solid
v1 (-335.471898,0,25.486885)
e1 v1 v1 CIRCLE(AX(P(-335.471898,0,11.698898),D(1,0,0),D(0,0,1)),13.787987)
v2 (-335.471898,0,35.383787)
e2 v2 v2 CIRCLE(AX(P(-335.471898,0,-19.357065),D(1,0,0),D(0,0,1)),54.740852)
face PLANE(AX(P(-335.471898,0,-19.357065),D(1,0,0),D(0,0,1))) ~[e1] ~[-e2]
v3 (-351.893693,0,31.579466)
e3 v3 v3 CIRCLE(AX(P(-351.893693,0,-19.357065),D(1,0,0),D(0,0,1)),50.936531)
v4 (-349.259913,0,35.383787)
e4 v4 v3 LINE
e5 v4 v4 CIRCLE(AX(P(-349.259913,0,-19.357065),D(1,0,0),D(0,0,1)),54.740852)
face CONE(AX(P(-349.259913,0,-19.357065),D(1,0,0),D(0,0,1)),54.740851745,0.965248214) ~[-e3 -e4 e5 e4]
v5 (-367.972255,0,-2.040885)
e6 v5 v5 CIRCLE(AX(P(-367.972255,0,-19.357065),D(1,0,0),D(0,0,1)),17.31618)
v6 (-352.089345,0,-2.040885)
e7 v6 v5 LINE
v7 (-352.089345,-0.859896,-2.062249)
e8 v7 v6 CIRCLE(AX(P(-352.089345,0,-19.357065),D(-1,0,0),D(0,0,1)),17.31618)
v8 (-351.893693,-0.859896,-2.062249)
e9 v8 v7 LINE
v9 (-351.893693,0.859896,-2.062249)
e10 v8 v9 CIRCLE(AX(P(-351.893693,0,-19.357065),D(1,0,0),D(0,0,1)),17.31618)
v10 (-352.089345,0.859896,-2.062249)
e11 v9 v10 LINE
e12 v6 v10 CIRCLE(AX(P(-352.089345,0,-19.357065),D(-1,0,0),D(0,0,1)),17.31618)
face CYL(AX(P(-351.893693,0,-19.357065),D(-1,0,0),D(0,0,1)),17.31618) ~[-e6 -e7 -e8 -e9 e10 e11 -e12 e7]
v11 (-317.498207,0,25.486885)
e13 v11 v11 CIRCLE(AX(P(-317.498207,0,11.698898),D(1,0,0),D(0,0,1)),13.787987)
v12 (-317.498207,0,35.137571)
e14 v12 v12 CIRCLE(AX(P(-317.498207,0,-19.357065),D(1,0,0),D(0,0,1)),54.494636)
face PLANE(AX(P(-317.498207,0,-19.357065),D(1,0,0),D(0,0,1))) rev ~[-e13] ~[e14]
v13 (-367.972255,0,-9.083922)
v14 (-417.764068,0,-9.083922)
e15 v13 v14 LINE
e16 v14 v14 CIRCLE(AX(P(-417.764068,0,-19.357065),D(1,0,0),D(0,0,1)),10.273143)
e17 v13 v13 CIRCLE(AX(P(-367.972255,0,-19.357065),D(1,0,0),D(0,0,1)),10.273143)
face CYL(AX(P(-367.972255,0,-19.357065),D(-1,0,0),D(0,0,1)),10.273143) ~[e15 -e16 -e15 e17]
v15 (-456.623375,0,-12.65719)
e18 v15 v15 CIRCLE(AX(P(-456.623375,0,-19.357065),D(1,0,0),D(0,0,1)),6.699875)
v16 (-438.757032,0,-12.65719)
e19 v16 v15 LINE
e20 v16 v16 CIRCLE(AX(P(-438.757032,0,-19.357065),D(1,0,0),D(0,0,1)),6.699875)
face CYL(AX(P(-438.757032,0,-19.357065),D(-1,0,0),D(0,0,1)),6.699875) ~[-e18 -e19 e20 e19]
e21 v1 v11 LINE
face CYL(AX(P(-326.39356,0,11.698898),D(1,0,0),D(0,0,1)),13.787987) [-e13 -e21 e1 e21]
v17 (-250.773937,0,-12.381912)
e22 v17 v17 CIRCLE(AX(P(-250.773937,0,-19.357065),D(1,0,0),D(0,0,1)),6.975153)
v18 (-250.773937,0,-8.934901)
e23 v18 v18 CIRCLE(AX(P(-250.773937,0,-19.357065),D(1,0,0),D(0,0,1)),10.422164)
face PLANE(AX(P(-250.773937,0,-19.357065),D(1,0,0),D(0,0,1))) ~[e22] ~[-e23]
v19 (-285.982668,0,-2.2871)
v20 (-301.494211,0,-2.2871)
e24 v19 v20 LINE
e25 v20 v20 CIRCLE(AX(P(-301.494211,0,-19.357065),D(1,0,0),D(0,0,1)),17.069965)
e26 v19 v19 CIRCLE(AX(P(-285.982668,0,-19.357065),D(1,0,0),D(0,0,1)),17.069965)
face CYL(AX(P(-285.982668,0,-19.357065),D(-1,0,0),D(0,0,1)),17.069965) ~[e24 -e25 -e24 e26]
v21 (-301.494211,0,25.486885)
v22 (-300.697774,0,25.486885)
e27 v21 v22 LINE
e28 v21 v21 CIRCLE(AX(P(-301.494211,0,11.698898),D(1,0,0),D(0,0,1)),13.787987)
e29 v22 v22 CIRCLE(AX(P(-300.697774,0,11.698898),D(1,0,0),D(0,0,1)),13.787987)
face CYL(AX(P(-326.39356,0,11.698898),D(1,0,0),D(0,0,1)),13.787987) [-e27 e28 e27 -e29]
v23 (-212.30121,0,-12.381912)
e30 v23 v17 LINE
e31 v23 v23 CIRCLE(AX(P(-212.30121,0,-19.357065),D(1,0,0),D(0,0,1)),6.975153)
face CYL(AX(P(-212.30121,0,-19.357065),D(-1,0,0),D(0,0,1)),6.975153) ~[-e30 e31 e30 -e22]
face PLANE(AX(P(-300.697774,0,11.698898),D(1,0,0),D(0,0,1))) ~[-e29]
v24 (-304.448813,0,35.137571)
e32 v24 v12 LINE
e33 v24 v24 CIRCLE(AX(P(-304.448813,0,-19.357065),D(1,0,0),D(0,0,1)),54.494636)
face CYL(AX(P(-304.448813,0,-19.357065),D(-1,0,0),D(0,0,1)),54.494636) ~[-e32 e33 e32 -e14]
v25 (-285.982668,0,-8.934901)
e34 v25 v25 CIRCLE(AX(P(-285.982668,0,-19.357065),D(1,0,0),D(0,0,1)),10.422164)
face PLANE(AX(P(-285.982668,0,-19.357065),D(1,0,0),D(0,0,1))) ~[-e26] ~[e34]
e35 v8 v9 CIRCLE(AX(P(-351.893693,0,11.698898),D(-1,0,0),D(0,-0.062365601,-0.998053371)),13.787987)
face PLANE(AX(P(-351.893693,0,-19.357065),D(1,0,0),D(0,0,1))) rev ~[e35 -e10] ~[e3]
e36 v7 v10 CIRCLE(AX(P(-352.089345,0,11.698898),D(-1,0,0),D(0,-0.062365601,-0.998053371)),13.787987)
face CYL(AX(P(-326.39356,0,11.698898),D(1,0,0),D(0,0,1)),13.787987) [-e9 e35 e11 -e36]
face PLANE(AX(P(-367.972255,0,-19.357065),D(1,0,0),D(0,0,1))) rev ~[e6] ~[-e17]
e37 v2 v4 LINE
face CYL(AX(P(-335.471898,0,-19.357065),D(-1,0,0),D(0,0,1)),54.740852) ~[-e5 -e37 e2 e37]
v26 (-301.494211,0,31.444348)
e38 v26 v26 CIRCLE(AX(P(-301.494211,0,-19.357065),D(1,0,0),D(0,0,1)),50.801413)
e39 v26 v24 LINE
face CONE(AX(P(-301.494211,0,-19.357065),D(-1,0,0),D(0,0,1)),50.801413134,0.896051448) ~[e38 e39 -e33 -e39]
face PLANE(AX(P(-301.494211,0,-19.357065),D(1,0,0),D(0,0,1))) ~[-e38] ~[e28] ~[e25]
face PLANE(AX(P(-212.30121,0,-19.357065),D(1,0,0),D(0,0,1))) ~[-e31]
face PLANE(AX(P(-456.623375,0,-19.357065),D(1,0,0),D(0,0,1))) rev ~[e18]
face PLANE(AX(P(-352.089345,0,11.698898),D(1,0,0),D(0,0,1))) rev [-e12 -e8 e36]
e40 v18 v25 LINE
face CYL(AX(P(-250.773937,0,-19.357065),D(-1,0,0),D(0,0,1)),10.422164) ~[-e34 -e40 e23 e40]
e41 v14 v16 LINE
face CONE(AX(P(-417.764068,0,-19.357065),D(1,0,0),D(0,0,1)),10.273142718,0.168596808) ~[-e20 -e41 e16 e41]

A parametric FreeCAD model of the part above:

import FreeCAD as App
import Part
import Sketcher

V = App.Vector
Q = App.Units.Quantity

doc = App.newDocument("Part")
body = doc.addObject("PartDesign::Body", "Body")

sketch1 = body.newObject("Sketcher::SketchObject", "Sketch")
sketch1.AttachmentSupport = (doc.getObject("XZ_Plane"), [""])
sketch1.MapMode = "FlatFace"
sketch1.addGeometry([
    Part.LineSegment(V(-456.623375, -12.65719, 0), V(-456.623375, -19.357065, 0)),
    Part.LineSegment(V(-456.623375, -19.357065, 0), V(-335.471898, -19.357065, 0)),
    Part.LineSegment(V(-335.471898, -19.357065, 0), V(-335.471898, 35.383787, 0)),
    Part.LineSegment(V(-335.471898, 35.383787, 0), V(-349.259913, 35.383787, 0)),
    Part.LineSegment(V(-349.259913, 35.383787, 0), V(-351.893693, 31.579466, 0)),
    Part.LineSegment(V(-351.893693, 31.579466, 0), V(-351.893693, -2.040885, 0)),
    Part.LineSegment(V(-351.893693, -2.040885, 0), V(-367.972255, -2.040885, 0)),
    Part.LineSegment(V(-367.972255, -2.040885, 0), V(-367.972255, -9.083922, 0)),
    Part.LineSegment(V(-367.972255, -9.083922, 0), V(-417.764068, -9.083922, 0)),
    Part.LineSegment(V(-417.764068, -9.083922, 0), V(-438.757032, -12.65719, 0)),
    Part.LineSegment(V(-438.757032, -12.65719, 0), V(-456.623375, -12.65719, 0)),
], False)
sketch1.addGeometry(Part.LineSegment(V(-456.623375, -19.357065, 0), V(-335.471898, -19.357065, 0)), True)
sketch1.addConstraint([
    Sketcher.Constraint("Coincident", 0, 2, 1, 1),
    Sketcher.Constraint("Coincident", 1, 2, 2, 1),
    Sketcher.Constraint("Coincident", 2, 2, 3, 1),
    Sketcher.Constraint("Coincident", 3, 2, 4, 1),
    Sketcher.Constraint("Coincident", 4, 2, 5, 1),
    Sketcher.Constraint("Coincident", 5, 2, 6, 1),
    Sketcher.Constraint("Coincident", 6, 2, 7, 1),
    Sketcher.Constraint("Coincident", 7, 2, 8, 1),
    Sketcher.Constraint("Coincident", 8, 2, 9, 1),
    Sketcher.Constraint("Coincident", 9, 2, 10, 1),
    Sketcher.Constraint("Coincident", 10, 2, 0, 1),
    Sketcher.Constraint("Vertical", 0),
    Sketcher.Constraint("Horizontal", 1),
    Sketcher.Constraint("Vertical", 2),
    Sketcher.Constraint("Horizontal", 3),
    Sketcher.Constraint("Vertical", 5),
    Sketcher.Constraint("Horizontal", 6),
    Sketcher.Constraint("Vertical", 7),
    Sketcher.Constraint("Horizontal", 8),
    Sketcher.Constraint("Horizontal", 10),
    Sketcher.Constraint("Horizontal", 11),
    Sketcher.Constraint("Coincident", 11, 1, 0, 2),
    Sketcher.Constraint("Vertical", 2, 2, 11, 2),
    Sketcher.Constraint("Distance", 9, Q("21.294901 mm")),
    Sketcher.Constraint("DistanceX", 6, 2, 6, 1, Q("16.078562 mm")),
    Sketcher.Constraint("DistanceY", 2, 1, 2, 2, Q("54.740852 mm")),
    Sketcher.Constraint("DistanceY", 5, 2, 5, 1, Q("33.620351 mm")),
    Sketcher.Constraint("DistanceX", 1, 2, -1, 1, Q("335.471898 mm")),
    Sketcher.Constraint("DistanceX", 1, 1, 1, 2, Q("121.151477 mm")),
    Sketcher.Constraint("DistanceX", 3, 2, 3, 1, Q("13.788015 mm")),
    Sketcher.Constraint("DistanceX", 8, 2, 8, 1, Q("49.791813 mm")),
    Sketcher.Constraint("DistanceX", 10, 2, 10, 1, Q("17.866343 mm")),
    Sketcher.Constraint("DistanceY", 0, 2, 0, 1, Q("6.699875 mm")),
    Sketcher.Constraint("DistanceY", 7, 2, 7, 1, Q("7.043037 mm")),
    Sketcher.Constraint("DistanceY", 9, 2, -1, 1, Q("12.65719 mm")),
    Sketcher.Constraint("DistanceX", 4, 2, 3, 2, Q("2.63378 mm")),
])
revolution = body.newObject("PartDesign::Revolution", "Revolution")
revolution.Profile = sketch1
revolution.ReferenceAxis = (sketch1, ["Axis0"])
revolution.Angle = 360
body2 = doc.addObject("PartDesign::Body", "Body001")

sketch2 = body2.newObject("Sketcher::SketchObject", "Sketch001")
sketch2.AttachmentSupport = (doc.getObject("XZ_Plane001"), [""])
sketch2.MapMode = "FlatFace"
sketch2.addGeometry([
    Part.LineSegment(V(-317.498207, -19.357065, 0), V(-212.30121, -19.357065, 0)),
    Part.LineSegment(V(-212.30121, -19.357065, 0), V(-212.30121, -12.381912, 0)),
    Part.LineSegment(V(-212.30121, -12.381912, 0), V(-250.773937, -12.381912, 0)),
    Part.LineSegment(V(-250.773937, -12.381912, 0), V(-250.773937, -8.934901, 0)),
    Part.LineSegment(V(-250.773937, -8.934901, 0), V(-285.982668, -8.934901, 0)),
    Part.LineSegment(V(-285.982668, -8.934901, 0), V(-285.982668, -2.2871, 0)),
    Part.LineSegment(V(-285.982668, -2.2871, 0), V(-301.494211, -2.2871, 0)),
    Part.LineSegment(V(-301.494211, -2.2871, 0), V(-301.494211, 31.444348, 0)),
    Part.LineSegment(V(-301.494211, 31.444348, 0), V(-304.448813, 35.137571, 0)),
    Part.LineSegment(V(-304.448813, 35.137571, 0), V(-317.498207, 35.137571, 0)),
    Part.LineSegment(V(-317.498207, 35.137571, 0), V(-317.498207, -19.357065, 0)),
], False)
sketch2.addGeometry(Part.LineSegment(V(-317.498207, -19.357065, 0), V(-212.30121, -19.357065, 0)), True)
sketch2.addConstraint([
    Sketcher.Constraint("Coincident", 0, 2, 1, 1),
    Sketcher.Constraint("Coincident", 1, 2, 2, 1),
    Sketcher.Constraint("Coincident", 2, 2, 3, 1),
    Sketcher.Constraint("Coincident", 3, 2, 4, 1),
    Sketcher.Constraint("Coincident", 4, 2, 5, 1),
    Sketcher.Constraint("Coincident", 5, 2, 6, 1),
    Sketcher.Constraint("Coincident", 6, 2, 7, 1),
    Sketcher.Constraint("Coincident", 7, 2, 8, 1),
    Sketcher.Constraint("Coincident", 8, 2, 9, 1),
    Sketcher.Constraint("Coincident", 9, 2, 10, 1),
    Sketcher.Constraint("Coincident", 10, 2, 0, 1),
    Sketcher.Constraint("Horizontal", 0),
    Sketcher.Constraint("Vertical", 1),
    Sketcher.Constraint("Horizontal", 2),
    Sketcher.Constraint("Vertical", 3),
    Sketcher.Constraint("Horizontal", 4),
    Sketcher.Constraint("Vertical", 5),
    Sketcher.Constraint("Horizontal", 6),
    Sketcher.Constraint("Vertical", 7),
    Sketcher.Constraint("Horizontal", 9),
    Sketcher.Constraint("Vertical", 10),
    Sketcher.Constraint("Horizontal", 11),
    Sketcher.Constraint("Coincident", 11, 1, 10, 2),
    Sketcher.Constraint("Vertical", 1, 2, 11, 2),
    Sketcher.Constraint("DistanceY", 5, 1, 5, 2, Q("6.647801 mm")),
    Sketcher.Constraint("DistanceX", 6, 2, 1, 2, Q("89.193001 mm")),
    Sketcher.Constraint("DistanceX", 4, 2, 4, 1, Q("35.208732 mm")),
    Sketcher.Constraint("DistanceY", 3, 1, 3, 2, Q("3.447011 mm")),
    Sketcher.Constraint("DistanceY", 3, 2, -1, 1, Q("8.934901 mm")),
    Sketcher.Constraint("Distance", 8, Q("4.729648 mm")),
    Sketcher.Constraint("DistanceX", 0, 1, 0, 2, Q("105.196998 mm")),
    Sketcher.Constraint("DistanceX", 2, 2, 2, 1, Q("38.472727 mm")),
    Sketcher.Constraint("DistanceX", 9, 2, 9, 1, Q("13.049394 mm")),
    Sketcher.Constraint("DistanceY", 1, 1, 1, 2, Q("6.975153 mm")),
    Sketcher.Constraint("DistanceY", 7, 1, 7, 2, Q("33.731448 mm")),
    Sketcher.Constraint("DistanceX", 0, 2, -1, 1, Q("212.30121 mm")),
])
revolution2 = body2.newObject("PartDesign::Revolution", "Revolution001")
revolution2.Profile = sketch2
revolution2.ReferenceAxis = (sketch2, ["Axis0"])
revolution2.Angle = 360
body.AllowCompound = True
doc.recompute()

boolean = body.newObject("PartDesign::Boolean", "Boolean")
boolean.Type = "Fuse"
boolean.addObjects([body2])

sketch3 = body.newObject("Sketcher::SketchObject", "Sketch002")
sketch3.AttachmentSupport = (doc.getObject("XZ_Plane"), [""])
sketch3.MapMode = "FlatFace"
sketch3.addGeometry([
    Part.LineSegment(V(-352.089345, 25.486885, 0), V(-352.089345, 11.698898, 0)),
    Part.LineSegment(V(-352.089345, 11.698898, 0), V(-300.697774, 11.698898, 0)),
    Part.LineSegment(V(-300.697774, 11.698898, 0), V(-300.697774, 25.486885, 0)),
    Part.LineSegment(V(-300.697774, 25.486885, 0), V(-352.089345, 25.486885, 0)),
], False)
sketch3.addGeometry(Part.LineSegment(V(-352.089345, 11.698898, 0), V(-300.697774, 11.698898, 0)), True)
sketch3.addConstraint([
    Sketcher.Constraint("Coincident", 0, 2, 1, 1),
    Sketcher.Constraint("Coincident", 1, 2, 2, 1),
    Sketcher.Constraint("Coincident", 2, 2, 3, 1),
    Sketcher.Constraint("Coincident", 3, 2, 0, 1),
    Sketcher.Constraint("Vertical", 0),
    Sketcher.Constraint("Horizontal", 1),
    Sketcher.Constraint("Vertical", 2),
    Sketcher.Constraint("Horizontal", 3),
    Sketcher.Constraint("Horizontal", 4),
    Sketcher.Constraint("Coincident", 4, 1, 0, 2),
    Sketcher.Constraint("Vertical", 2, 2, 4, 2),
    Sketcher.Constraint("DistanceX", 1, 1, 1, 2, Q("51.391572 mm")),
    Sketcher.Constraint("DistanceY", 0, 2, 0, 1, Q("13.787987 mm")),
    Sketcher.Constraint("DistanceX", 0, 2, -1, 1, Q("352.089345 mm")),
    Sketcher.Constraint("DistanceY", -1, 1, 0, 2, Q("11.698898 mm")),
])
revolution3 = body.newObject("PartDesign::Revolution", "Revolution002")
revolution3.Profile = sketch3
revolution3.ReferenceAxis = (sketch3, ["Axis0"])
revolution3.Angle = 360

doc.recompute()
